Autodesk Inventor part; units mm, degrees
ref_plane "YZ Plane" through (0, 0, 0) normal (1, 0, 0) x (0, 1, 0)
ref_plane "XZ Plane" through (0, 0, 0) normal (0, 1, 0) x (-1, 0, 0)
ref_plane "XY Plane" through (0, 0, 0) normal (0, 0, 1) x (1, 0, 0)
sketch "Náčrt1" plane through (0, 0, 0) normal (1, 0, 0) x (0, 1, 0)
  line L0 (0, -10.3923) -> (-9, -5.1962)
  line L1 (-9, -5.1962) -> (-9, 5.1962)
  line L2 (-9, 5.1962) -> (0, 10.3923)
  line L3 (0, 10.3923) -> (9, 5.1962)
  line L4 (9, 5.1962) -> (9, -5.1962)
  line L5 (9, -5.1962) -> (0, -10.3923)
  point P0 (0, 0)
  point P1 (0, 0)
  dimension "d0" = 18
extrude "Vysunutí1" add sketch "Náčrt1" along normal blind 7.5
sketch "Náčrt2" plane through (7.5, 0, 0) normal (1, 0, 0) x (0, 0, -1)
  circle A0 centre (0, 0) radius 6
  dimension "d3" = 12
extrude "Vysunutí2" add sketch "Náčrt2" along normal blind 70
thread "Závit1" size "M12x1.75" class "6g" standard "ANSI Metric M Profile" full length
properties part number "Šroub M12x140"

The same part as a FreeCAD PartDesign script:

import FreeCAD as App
import Part
import Sketcher
from FreeCAD import Vector
Q = App.Units.Quantity

doc = App.newDocument("Part")
body = doc.addObject("PartDesign::Body", "Body")

sketch1 = body.newObject("Sketcher::SketchObject", "Sketch")
sketch1.AttachmentSupport = (doc.getObject("YZ_Plane"), [""])
sketch1.MapMode = "FlatFace"
sketch1.addGeometry(Part.LineSegment(Vector(-9, -5, 0), Vector(0, -10, 0)), False)
sketch1.addGeometry(Part.LineSegment(Vector(0, -10, 0), Vector(9, -5, 0)), False)
sketch1.addGeometry(Part.LineSegment(Vector(9, -5, 0), Vector(9, 5, 0)), False)
sketch1.addGeometry(Part.LineSegment(Vector(9, 5, 0), Vector(0, 10, 0)), False)
sketch1.addGeometry(Part.LineSegment(Vector(0, 10, 0), Vector(-9, 5, 0)), False)
sketch1.addGeometry(Part.LineSegment(Vector(-9, 5, 0), Vector(-9, -5, 0)), False)
sketch1.addConstraint(Sketcher.Constraint("Coincident", 0, 2, 1, 1))
sketch1.addConstraint(Sketcher.Constraint("Coincident", 1, 2, 2, 1))
sketch1.addConstraint(Sketcher.Constraint("Coincident", 2, 2, 3, 1))
sketch1.addConstraint(Sketcher.Constraint("Coincident", 3, 2, 4, 1))
sketch1.addConstraint(Sketcher.Constraint("Coincident", 4, 2, 5, 1))
sketch1.addConstraint(Sketcher.Constraint("Coincident", 5, 2, 0, 1))
sketch1.addConstraint(Sketcher.Constraint("Vertical", 2))
sketch1.addConstraint(Sketcher.Constraint("Vertical", 5))
sketch1.addConstraint(Sketcher.Constraint("Symmetric", 0, 2, 3, 2, -1, 1))
sketch1.addConstraint(Sketcher.Constraint("Symmetric", 1, 2, 4, 2, -1, 1))
sketch1.addConstraint(Sketcher.Constraint("PointOnObject", 0, 2, -2))
sketch1.addConstraint(Sketcher.Constraint("Parallel", 0, 3))
sketch1.addConstraint(Sketcher.Constraint("Horizontal", 2, 2, 4, 2))
sketch1.addConstraint(Sketcher.Constraint("DistanceX", 4, 2, 2, 2, Q("18 mm")))
sketch1.addConstraint(Sketcher.Constraint("Angle", 0, Q("-29.9997 deg")))
sketch1.addConstraint(Sketcher.Constraint("DistanceY", 2, 1, 2, 2, Q("10.3924 mm")))
pad1 = body.newObject("PartDesign::Pad", "Pad")
pad1.Profile = sketch1
pad1.Length = 7.5

sketch2 = body.newObject("Sketcher::SketchObject", "Sketch001")
sketch2.AttachmentSupport = (doc.getObject("YZ_Plane"), [""])
sketch2.MapMode = "FlatFace"
sketch2.AttachmentOffset = App.Placement(Vector(0, 0, 7.5), App.Rotation())
sketch2.addGeometry(Part.Circle(Vector(0, 0, 0), Vector(0, 0, 1), 6), False)
sketch2.addConstraint(Sketcher.Constraint("Coincident", 0, 3, -1, 1))
sketch2.addConstraint(Sketcher.Constraint("Diameter", 0, Q("12 mm")))
pad2 = body.newObject("PartDesign::Pad", "Pad001")
pad2.Profile = sketch2
pad2.Length = 70

doc.recompute()
